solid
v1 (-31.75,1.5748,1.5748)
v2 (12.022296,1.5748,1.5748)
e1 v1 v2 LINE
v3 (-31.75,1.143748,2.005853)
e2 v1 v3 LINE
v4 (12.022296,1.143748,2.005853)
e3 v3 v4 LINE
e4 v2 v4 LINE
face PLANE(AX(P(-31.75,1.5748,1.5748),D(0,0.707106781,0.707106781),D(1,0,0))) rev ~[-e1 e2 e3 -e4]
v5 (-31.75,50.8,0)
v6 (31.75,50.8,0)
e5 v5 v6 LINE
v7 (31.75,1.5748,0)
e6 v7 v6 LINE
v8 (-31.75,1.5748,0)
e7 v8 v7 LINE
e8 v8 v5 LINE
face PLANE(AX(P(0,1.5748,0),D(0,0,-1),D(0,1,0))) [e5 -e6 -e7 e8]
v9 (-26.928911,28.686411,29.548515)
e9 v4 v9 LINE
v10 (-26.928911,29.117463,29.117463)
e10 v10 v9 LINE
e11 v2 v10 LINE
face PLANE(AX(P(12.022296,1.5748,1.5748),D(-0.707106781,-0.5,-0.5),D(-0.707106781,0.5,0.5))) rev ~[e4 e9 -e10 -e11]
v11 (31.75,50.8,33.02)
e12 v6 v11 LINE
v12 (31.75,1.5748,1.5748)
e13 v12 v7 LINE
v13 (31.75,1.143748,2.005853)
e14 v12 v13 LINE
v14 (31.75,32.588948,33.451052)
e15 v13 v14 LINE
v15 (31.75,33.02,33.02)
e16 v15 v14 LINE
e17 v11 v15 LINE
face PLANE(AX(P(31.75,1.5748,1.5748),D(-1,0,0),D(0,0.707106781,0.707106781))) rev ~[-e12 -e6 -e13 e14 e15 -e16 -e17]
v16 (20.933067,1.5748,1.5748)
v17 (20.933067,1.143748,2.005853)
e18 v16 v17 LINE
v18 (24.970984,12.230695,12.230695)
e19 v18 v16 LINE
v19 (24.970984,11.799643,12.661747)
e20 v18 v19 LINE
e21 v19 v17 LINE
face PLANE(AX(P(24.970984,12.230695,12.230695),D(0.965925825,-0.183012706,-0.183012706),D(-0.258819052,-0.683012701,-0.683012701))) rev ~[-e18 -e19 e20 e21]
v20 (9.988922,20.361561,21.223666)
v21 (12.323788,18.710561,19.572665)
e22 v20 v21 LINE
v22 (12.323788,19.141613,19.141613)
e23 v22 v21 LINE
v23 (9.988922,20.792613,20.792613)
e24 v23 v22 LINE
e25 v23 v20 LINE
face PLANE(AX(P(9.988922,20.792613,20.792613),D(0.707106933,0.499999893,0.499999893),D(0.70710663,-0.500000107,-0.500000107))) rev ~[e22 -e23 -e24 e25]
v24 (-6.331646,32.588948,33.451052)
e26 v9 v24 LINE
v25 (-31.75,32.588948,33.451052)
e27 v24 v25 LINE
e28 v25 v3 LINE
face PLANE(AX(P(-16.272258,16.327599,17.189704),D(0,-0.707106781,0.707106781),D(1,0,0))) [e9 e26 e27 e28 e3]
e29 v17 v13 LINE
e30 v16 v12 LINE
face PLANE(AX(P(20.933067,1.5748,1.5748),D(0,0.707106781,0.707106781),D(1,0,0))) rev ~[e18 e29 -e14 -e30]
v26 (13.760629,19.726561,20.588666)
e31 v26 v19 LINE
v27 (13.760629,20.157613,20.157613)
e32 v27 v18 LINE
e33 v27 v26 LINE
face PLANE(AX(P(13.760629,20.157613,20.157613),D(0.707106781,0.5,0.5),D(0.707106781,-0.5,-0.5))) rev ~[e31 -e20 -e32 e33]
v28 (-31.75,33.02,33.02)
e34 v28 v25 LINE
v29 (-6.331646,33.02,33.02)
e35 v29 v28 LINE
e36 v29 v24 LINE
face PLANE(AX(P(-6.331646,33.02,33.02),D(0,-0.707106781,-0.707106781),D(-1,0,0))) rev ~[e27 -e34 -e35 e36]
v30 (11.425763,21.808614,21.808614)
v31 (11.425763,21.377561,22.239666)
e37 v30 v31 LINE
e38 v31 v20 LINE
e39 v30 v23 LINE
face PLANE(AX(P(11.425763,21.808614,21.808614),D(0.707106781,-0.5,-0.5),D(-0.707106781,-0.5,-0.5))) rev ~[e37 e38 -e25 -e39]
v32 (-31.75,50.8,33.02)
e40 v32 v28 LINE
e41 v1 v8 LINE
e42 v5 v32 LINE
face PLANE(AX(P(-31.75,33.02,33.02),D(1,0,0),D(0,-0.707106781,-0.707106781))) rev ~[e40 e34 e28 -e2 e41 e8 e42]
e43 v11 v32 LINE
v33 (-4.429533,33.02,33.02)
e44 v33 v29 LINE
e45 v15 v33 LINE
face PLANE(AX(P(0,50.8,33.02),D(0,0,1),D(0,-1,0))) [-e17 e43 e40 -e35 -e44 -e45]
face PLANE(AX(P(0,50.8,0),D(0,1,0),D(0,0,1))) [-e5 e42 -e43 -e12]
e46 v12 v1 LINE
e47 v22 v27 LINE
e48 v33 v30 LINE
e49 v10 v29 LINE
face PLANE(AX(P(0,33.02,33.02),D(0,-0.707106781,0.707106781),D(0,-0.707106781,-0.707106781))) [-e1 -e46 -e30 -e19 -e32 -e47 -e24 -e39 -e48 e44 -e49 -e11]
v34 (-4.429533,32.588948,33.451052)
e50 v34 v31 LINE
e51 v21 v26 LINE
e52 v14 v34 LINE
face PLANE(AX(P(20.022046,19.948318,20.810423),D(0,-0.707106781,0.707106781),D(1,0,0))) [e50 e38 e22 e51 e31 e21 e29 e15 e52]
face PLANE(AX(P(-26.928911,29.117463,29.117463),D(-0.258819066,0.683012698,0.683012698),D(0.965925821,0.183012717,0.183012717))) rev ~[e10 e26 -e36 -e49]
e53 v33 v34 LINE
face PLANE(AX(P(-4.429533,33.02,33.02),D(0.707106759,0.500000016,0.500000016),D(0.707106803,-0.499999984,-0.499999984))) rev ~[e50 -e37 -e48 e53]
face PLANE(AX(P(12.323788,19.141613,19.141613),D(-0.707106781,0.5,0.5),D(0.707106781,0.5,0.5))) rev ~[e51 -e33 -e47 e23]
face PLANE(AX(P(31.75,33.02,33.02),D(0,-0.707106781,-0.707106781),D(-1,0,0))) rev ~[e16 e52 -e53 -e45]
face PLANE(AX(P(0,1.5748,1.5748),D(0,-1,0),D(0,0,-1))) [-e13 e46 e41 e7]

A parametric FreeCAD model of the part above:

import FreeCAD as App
import Part
import Sketcher
Q = App.Units.Quantity


def add_polygon(sketch, points):
    """Adds a closed chain of lines whose ends are joined by coincident constraints."""
    first, n = sketch.GeometryCount, len(points)
    for a, b in zip(points, points[1:] + points[:1]):
        sketch.addGeometry(Part.LineSegment(App.Vector(*a, 0), App.Vector(*b, 0)), False)
    for i in range(n):
        sketch.addConstraint(Sketcher.Constraint("Coincident", first + i, 2, first + (i + 1) % n, 1))

doc = App.newDocument("Part")
params = doc.addObject("Spreadsheet::Sheet", "Params")
for row, (alias, value) in enumerate([
    ("sketch1_width", "0.7 in"),
    ("sketch1_height", "1.3 in"),
    ("sketch1_width2", "1.938 in"),
    ("pad1_length", "2.5 in"),
    ("sketch2_length", "0.08 in"),
    ("sketch2_length2", "0.13 in"),
    ("pad2_length", "0.024 in"),
], start=1):
    params.set(f"A{row}", alias)
    params.set(f"B{row}", "=" + value)
    params.setAlias(f"B{row}", alias)

body = doc.addObject("PartDesign::Body", "Body")

# Sketch on YZ plane
sketch1 = body.newObject("Sketcher::SketchObject", "Sketch")
sketch1.AttachmentSupport = (doc.getObject("YZ_Plane"), [""])
sketch1.MapMode = "FlatFace"
add_polygon(sketch1, [(1.6, 1.6), (1.6, 0), (50.8, 0), (50.8, 33), (33, 33)])  # lines 0-4
sketch1.addConstraint([
    Sketcher.Constraint("Vertical", 0),
    Sketcher.Constraint("Horizontal", 1),
    Sketcher.Constraint("Vertical", 2),
    Sketcher.Constraint("Horizontal", 3),
    Sketcher.Constraint("PointOnObject", 0, 2, -1),
    Sketcher.Constraint("DistanceX", 3, 2, 3, 1, Q("0.7 in")),
    Sketcher.Constraint("DistanceY", 2, 1, 2, 2, Q("1.3 in")),
    Sketcher.Constraint("DistanceX", -1, 1, 1, 2, Q("2 in")),
    Sketcher.Constraint("Angle", 4, Q("-135 deg")),
    Sketcher.Constraint("DistanceX", 1, 1, 1, 2, Q("1.938 in")),
])
sketch1.setExpression("Constraints[10]", "Params.sketch1_width")
sketch1.setExpression("Constraints[11]", "Params.sketch1_height")
sketch1.setExpression("Constraints[14]", "Params.sketch1_width2")
pad1 = body.newObject("PartDesign::Pad", "Pad")
pad1.Profile = sketch1
pad1.setExpression("Length", "Params.pad1_length")
pad1.Midplane = True

# Sketch on an angled plane
sketch2 = body.newObject("Sketcher::SketchObject", "Sketch001")
sketch2.Placement = App.Placement(App.Vector(0, 0, 0), App.Rotation(App.Vector(1, 0, 0), App.Vector(0, 0.707106781, 0.707106781), App.Vector(0, -0.707106781, 0.707106781), "ZXY"))
add_polygon(sketch2, [(20.9, 2.2), (31.8, 2.2), (31.8, 46.7), (-4.4, 46.7), (11.4, 30.8), (10, 29.4), (12.3, 27.1), (13.8, 28.5), (25, 17.3)])  # lines 0-8
add_polygon(sketch2, [(-31.8, 2.2), (12, 2.2), (-26.9, 41.2), (-6.3, 46.7), (-31.8, 46.7)])  # lines 9-13
sketch2.addConstraint([
    Sketcher.Constraint("Horizontal", 0),
    Sketcher.Constraint("Vertical", 1),
    Sketcher.Constraint("Horizontal", 2),
    Sketcher.Constraint("Horizontal", 9),
    Sketcher.Constraint("Horizontal", 12),
    Sketcher.Constraint("Vertical", 13),
    Sketcher.Constraint("Symmetric", 1, 2, 12, 2, -2),
    Sketcher.Constraint("Perpendicular", 3, 4),
    Sketcher.Constraint("Perpendicular", 4, 5),
    Sketcher.Constraint("Perpendicular", 5, 6),
    Sketcher.Constraint("Perpendicular", 6, 7),
    Sketcher.Constraint("Parallel", 7, 10),
    Sketcher.Constraint("Horizontal", 8, 2, 9, 2),
    Sketcher.Constraint("Equal", 4, 6),
    Sketcher.Constraint("Angle", 3, Q("-44.999998 deg")),
    Sketcher.Constraint("Angle", 8, Q("-105 deg")),
    Sketcher.Constraint("Angle", 11, Q("15.000001 deg")),
    Sketcher.Constraint("Distance", 4, Q("0.08 in")),
    Sketcher.Constraint("Distance", 5, Q("0.13 in")),
    Sketcher.Constraint("DistanceX", -1, 1, 0, 2, Q("1.25 in")),
    Sketcher.Constraint("DistanceX", 10, 2, 5, 2, 39.252699),
    Sketcher.Constraint("DistanceX", 0, 1, 0, 2, 10.816933),
    Sketcher.Constraint("DistanceX", 2, 2, 2, 1, 36.179533),
    Sketcher.Constraint("DistanceX", 9, 1, 9, 2, 43.772296),
    Sketcher.Constraint("DistanceX", 12, 2, 12, 1, 25.418354),
    Sketcher.Constraint("DistanceY", 1, 1, 1, 2, 44.470228),
    Sketcher.Constraint("DistanceY", -1, 1, 1, 2, 46.697332),
])
sketch2.setExpression("Constraints[31]", "Params.sketch2_length")
sketch2.setExpression("Constraints[32]", "Params.sketch2_length2")
pad2 = body.newObject("PartDesign::Pad", "Pad001")
pad2.Profile = sketch2
pad2.setExpression("Length", "Params.pad2_length")

doc.recompute()
